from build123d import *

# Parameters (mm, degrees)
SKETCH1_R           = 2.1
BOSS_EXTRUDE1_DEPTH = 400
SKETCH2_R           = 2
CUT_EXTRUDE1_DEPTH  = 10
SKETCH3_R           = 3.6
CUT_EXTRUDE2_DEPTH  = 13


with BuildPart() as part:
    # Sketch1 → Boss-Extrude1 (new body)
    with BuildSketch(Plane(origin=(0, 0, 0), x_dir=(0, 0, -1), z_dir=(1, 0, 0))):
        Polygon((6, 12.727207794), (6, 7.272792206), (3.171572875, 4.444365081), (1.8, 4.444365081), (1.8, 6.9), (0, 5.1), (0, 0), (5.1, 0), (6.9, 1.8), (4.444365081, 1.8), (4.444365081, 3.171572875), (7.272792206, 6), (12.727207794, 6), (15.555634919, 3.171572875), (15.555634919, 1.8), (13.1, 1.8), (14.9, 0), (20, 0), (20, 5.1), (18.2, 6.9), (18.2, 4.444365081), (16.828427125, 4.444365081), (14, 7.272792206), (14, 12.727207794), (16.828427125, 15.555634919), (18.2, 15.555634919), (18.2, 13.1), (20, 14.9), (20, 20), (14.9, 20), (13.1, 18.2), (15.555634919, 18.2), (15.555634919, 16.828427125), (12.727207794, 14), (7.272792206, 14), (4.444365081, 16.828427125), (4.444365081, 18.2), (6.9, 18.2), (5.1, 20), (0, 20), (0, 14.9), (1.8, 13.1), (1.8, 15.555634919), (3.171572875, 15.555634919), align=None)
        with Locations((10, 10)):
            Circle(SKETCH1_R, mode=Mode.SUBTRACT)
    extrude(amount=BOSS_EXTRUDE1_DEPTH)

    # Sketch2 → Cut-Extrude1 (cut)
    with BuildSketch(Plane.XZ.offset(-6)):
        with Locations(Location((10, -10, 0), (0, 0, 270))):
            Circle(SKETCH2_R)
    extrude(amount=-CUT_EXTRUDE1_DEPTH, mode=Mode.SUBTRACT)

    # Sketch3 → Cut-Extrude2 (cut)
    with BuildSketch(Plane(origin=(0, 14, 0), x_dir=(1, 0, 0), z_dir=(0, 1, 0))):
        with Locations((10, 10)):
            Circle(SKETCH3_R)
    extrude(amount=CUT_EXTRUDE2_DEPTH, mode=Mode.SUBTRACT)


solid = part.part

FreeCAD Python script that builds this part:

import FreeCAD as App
import Part
import Sketcher
from FreeCAD import Vector


def add_polygon(sketch, points):
    """Adds a closed chain of lines whose ends are joined by coincident constraints."""
    first, n = sketch.GeometryCount, len(points)
    for a, b in zip(points, points[1:] + points[:1]):
        sketch.addGeometry(Part.LineSegment(App.Vector(*a, 0), App.Vector(*b, 0)), False)
    for i in range(n):
        sketch.addConstraint(Sketcher.Constraint("Coincident", first + i, 2, first + (i + 1) % n, 1))

doc = App.newDocument("Part")
body = doc.addObject("PartDesign::Body", "Body")

# Sketch on YZ plane
sketch1 = body.newObject("Sketcher::SketchObject", "Sketch")
sketch1.AttachmentSupport = (doc.getObject("YZ_Plane"), [""])
sketch1.MapMode = "FlatFace"
add_polygon(sketch1, [(12.7, -6), (7.3, -6), (4.4, -3.2), (4.4, -1.8), (6.9, -1.8), (5.1, 0), (0, 0), (0, -5.1), (1.8, -6.9), (1.8, -4.4), (3.2, -4.4), (6, -7.3), (6, -12.7), (3.2, -15.6), (1.8, -15.6), (1.8, -13.1), (0, -14.9), (0, -20), (5.1, -20), (6.9, -18.2), (4.4, -18.2), (4.4, -16.8), (7.3, -14), (12.7, -14), (15.6, -16.8), (15.6, -18.2), (13.1, -18.2), (14.9, -20), (20, -20), (20, -14.9), (18.2, -13.1), (18.2, -15.6), (16.8, -15.6), (14, -12.7), (14, -7.3), (16.8, -4.4), (18.2, -4.4), (18.2, -6.9), (20, -5.1), (20, 0), (14.9, 0), (13.1, -1.8), (15.6, -1.8), (15.6, -3.2)])  # lines 0-43
sketch1.addGeometry(Part.Circle(Vector(10, -10, 0), Vector(0, 0, 1), 2.1), False)  # 44
sketch1.addConstraint(Sketcher.Constraint("Horizontal", 0))
sketch1.addConstraint(Sketcher.Constraint("Vertical", 2))
sketch1.addConstraint(Sketcher.Constraint("Horizontal", 3))
sketch1.addConstraint(Sketcher.Constraint("Horizontal", 5))
sketch1.addConstraint(Sketcher.Constraint("Vertical", 6))
sketch1.addConstraint(Sketcher.Constraint("Vertical", 8))
sketch1.addConstraint(Sketcher.Constraint("Horizontal", 9))
sketch1.addConstraint(Sketcher.Constraint("Vertical", 11))
sketch1.addConstraint(Sketcher.Constraint("Horizontal", 13))
sketch1.addConstraint(Sketcher.Constraint("Vertical", 14))
sketch1.addConstraint(Sketcher.Constraint("Vertical", 16))
sketch1.addConstraint(Sketcher.Constraint("Horizontal", 17))
sketch1.addConstraint(Sketcher.Constraint("Horizontal", 19))
sketch1.addConstraint(Sketcher.Constraint("Vertical", 20))
sketch1.addConstraint(Sketcher.Constraint("Horizontal", 22))
sketch1.addConstraint(Sketcher.Constraint("Vertical", 24))
sketch1.addConstraint(Sketcher.Constraint("Horizontal", 25))
sketch1.addConstraint(Sketcher.Constraint("Horizontal", 27))
sketch1.addConstraint(Sketcher.Constraint("Vertical", 28))
sketch1.addConstraint(Sketcher.Constraint("Vertical", 30))
sketch1.addConstraint(Sketcher.Constraint("Horizontal", 31))
sketch1.addConstraint(Sketcher.Constraint("Vertical", 33))
sketch1.addConstraint(Sketcher.Constraint("Horizontal", 35))
sketch1.addConstraint(Sketcher.Constraint("Vertical", 36))
sketch1.addConstraint(Sketcher.Constraint("Vertical", 38))
sketch1.addConstraint(Sketcher.Constraint("Horizontal", 39))
sketch1.addConstraint(Sketcher.Constraint("Horizontal", 41))
sketch1.addConstraint(Sketcher.Constraint("Vertical", 42))
sketch1.addConstraint(Sketcher.Constraint("Coincident", 5, 2, -1, 1))
sketch1.addConstraint(Sketcher.Constraint("PointOnObject", 15, 2, -2))
sketch1.addConstraint(Sketcher.Constraint("PointOnObject", 38, 2, -1))
sketch1.addConstraint(Sketcher.Constraint("Parallel", 1, 4))
sketch1.addConstraint(Sketcher.Constraint("Parallel", 4, 7))
sketch1.addConstraint(Sketcher.Constraint("Parallel", 7, 10))
sketch1.addConstraint(Sketcher.Constraint("Perpendicular", 10, 12))
sketch1.addConstraint(Sketcher.Constraint("Parallel", 12, 15))
sketch1.addConstraint(Sketcher.Constraint("Parallel", 15, 18))
sketch1.addConstraint(Sketcher.Constraint("Parallel", 18, 21))
sketch1.addConstraint(Sketcher.Constraint("Perpendicular", 21, 23))
sketch1.addConstraint(Sketcher.Constraint("Parallel", 23, 26))
sketch1.addConstraint(Sketcher.Constraint("Parallel", 26, 29))
sketch1.addConstraint(Sketcher.Constraint("Parallel", 29, 32))
sketch1.addConstraint(Sketcher.Constraint("Perpendicular", 32, 34))
sketch1.addConstraint(Sketcher.Constraint("Parallel", 34, 37))
sketch1.addConstraint(Sketcher.Constraint("Parallel", 37, 40))
sketch1.addConstraint(Sketcher.Constraint("Parallel", 40, 43))
sketch1.addConstraint(Sketcher.Constraint("Horizontal", 20, 2, 23, 2))
sketch1.addConstraint(Sketcher.Constraint("Horizontal", 19, 2, 24, 2))
sketch1.addConstraint(Sketcher.Constraint("Horizontal", 17, 2, 26, 2))
sketch1.addConstraint(Sketcher.Constraint("Horizontal", 15, 2, 28, 2))
sketch1.addConstraint(Sketcher.Constraint("Horizontal", 14, 2, 29, 2))
sketch1.addConstraint(Sketcher.Constraint("Horizontal", 13, 2, 30, 2))
sketch1.addConstraint(Sketcher.Constraint("Horizontal", 11, 2, 32, 2))
sketch1.addConstraint(Sketcher.Constraint("Horizontal", 10, 2, 33, 2))
sketch1.addConstraint(Sketcher.Constraint("Horizontal", 9, 2, 34, 2))
sketch1.addConstraint(Sketcher.Constraint("Horizontal", 7, 2, 36, 2))
sketch1.addConstraint(Sketcher.Constraint("Horizontal", 6, 2, 37, 2))
sketch1.addConstraint(Sketcher.Constraint("Horizontal", 3, 2, 40, 2))
sketch1.addConstraint(Sketcher.Constraint("Horizontal", 1, 2, 42, 2))
sketch1.addConstraint(Sketcher.Constraint("Vertical", 9, 2, 12, 2))
sketch1.addConstraint(Sketcher.Constraint("Vertical", 8, 2, 13, 2))
sketch1.addConstraint(Sketcher.Constraint("Vertical", 4, 2, 17, 2))
sketch1.addConstraint(Sketcher.Constraint("Vertical", 3, 2, 18, 2))
sketch1.addConstraint(Sketcher.Constraint("Vertical", 2, 2, 19, 2))
sketch1.addConstraint(Sketcher.Constraint("Vertical", 0, 2, 21, 2))
sketch1.addConstraint(Sketcher.Constraint("Vertical", 31, 2, 34, 2))
sketch1.addConstraint(Sketcher.Constraint("Vertical", 30, 2, 35, 2))
sketch1.addConstraint(Sketcher.Constraint("Vertical", 26, 2, 39, 2))
sketch1.addConstraint(Sketcher.Constraint("Vertical", 24, 2, 41, 2))
sketch1.addConstraint(Sketcher.Constraint("Equal", 19, 25))
sketch1.addConstraint(Sketcher.Constraint("Equal", 17, 27))
sketch1.addConstraint(Sketcher.Constraint("Equal", 13, 31))
sketch1.addConstraint(Sketcher.Constraint("Equal", 35, 2))
sketch1.addConstraint(Sketcher.Constraint("Equal", 39, 6))
sketch1.addConstraint(Sketcher.Constraint("Equal", 41, 8))
sketch1.addConstraint(Sketcher.Constraint("Equal", 22, 11))
sketch1.addConstraint(Sketcher.Constraint("Equal", 8, 14))
sketch1.addConstraint(Sketcher.Constraint("Equal", 6, 16))
sketch1.addConstraint(Sketcher.Constraint("Equal", 2, 20))
sketch1.addConstraint(Sketcher.Constraint("Equal", 4, 7))
sketch1.addConstraint(Sketcher.Constraint("Equal", 1, 10))
sketch1.addConstraint(Sketcher.Constraint("Diameter", 44, 4.2))
sketch1.addConstraint(Sketcher.Constraint("Distance", 1, 4.0))
sketch1.addConstraint(Sketcher.Constraint("DistanceX", 5, 2, 5, 1, 5.1))
sketch1.addConstraint(Sketcher.Constraint("DistanceX", -1, 1, 44, 3, 10.0))
sketch1.addConstraint(Sketcher.Constraint("DistanceY", 44, 3, -1, 1, 10.0))
sketch1.addConstraint(Sketcher.Constraint("DistanceY", 0, 2, -1, 1, 6.0))
sketch1.addConstraint(Sketcher.Constraint("DistanceY", 16, 2, -1, 1, 20.0))
sketch1.addConstraint(Sketcher.Constraint("DistanceY", 15, 2, 7, 2, 8.0))
sketch1.addConstraint(Sketcher.Constraint("DistanceX", 0, 2, 0, 1, 5.454416))
pad1 = body.newObject("PartDesign::Pad", "Pad")
pad1.Profile = sketch1
pad1.Length = 400

# Sketch on XZ plane
sketch2 = body.newObject("Sketcher::SketchObject", "Sketch001")
sketch2.AttachmentSupport = (doc.getObject("XZ_Plane"), [""])
sketch2.MapMode = "FlatFace"
sketch2.AttachmentOffset = App.Placement(Vector(0, 0, -6), App.Rotation())
sketch2.addGeometry(Part.Circle(Vector(10, -10, 0), Vector(0, 0, 1), 2), False)
sketch2.addConstraint(Sketcher.Constraint("Diameter", 0, 4.0))
sketch2.addConstraint(Sketcher.Constraint("DistanceX", -1, 1, 0, 3, 10.0))
sketch2.addConstraint(Sketcher.Constraint("DistanceY", 0, 3, -1, 1, 10.0))
pocket1 = body.newObject("PartDesign::Pocket", "Pocket")
pocket1.Profile = sketch2
pocket1.Length = 10

# Sketch on XZ plane
sketch3 = body.newObject("Sketcher::SketchObject", "Sketch002")
sketch3.AttachmentSupport = (doc.getObject("XZ_Plane"), [""])
sketch3.MapMode = "FlatFace"
sketch3.AttachmentOffset = App.Placement(Vector(0, 0, -14), App.Rotation())
sketch3.addGeometry(Part.Circle(Vector(10, -10, 0), Vector(0, 0, 1), 3.6), False)
sketch3.addConstraint(Sketcher.Constraint("Diameter", 0, 7.2))
sketch3.addConstraint(Sketcher.Constraint("DistanceX", -1, 1, 0, 3, 10.0))
sketch3.addConstraint(Sketcher.Constraint("DistanceY", 0, 3, -1, 1, 10.0))
pocket2 = body.newObject("PartDesign::Pocket", "Pocket001")
pocket2.Profile = sketch3
pocket2.Length = 13

doc.recompute()
